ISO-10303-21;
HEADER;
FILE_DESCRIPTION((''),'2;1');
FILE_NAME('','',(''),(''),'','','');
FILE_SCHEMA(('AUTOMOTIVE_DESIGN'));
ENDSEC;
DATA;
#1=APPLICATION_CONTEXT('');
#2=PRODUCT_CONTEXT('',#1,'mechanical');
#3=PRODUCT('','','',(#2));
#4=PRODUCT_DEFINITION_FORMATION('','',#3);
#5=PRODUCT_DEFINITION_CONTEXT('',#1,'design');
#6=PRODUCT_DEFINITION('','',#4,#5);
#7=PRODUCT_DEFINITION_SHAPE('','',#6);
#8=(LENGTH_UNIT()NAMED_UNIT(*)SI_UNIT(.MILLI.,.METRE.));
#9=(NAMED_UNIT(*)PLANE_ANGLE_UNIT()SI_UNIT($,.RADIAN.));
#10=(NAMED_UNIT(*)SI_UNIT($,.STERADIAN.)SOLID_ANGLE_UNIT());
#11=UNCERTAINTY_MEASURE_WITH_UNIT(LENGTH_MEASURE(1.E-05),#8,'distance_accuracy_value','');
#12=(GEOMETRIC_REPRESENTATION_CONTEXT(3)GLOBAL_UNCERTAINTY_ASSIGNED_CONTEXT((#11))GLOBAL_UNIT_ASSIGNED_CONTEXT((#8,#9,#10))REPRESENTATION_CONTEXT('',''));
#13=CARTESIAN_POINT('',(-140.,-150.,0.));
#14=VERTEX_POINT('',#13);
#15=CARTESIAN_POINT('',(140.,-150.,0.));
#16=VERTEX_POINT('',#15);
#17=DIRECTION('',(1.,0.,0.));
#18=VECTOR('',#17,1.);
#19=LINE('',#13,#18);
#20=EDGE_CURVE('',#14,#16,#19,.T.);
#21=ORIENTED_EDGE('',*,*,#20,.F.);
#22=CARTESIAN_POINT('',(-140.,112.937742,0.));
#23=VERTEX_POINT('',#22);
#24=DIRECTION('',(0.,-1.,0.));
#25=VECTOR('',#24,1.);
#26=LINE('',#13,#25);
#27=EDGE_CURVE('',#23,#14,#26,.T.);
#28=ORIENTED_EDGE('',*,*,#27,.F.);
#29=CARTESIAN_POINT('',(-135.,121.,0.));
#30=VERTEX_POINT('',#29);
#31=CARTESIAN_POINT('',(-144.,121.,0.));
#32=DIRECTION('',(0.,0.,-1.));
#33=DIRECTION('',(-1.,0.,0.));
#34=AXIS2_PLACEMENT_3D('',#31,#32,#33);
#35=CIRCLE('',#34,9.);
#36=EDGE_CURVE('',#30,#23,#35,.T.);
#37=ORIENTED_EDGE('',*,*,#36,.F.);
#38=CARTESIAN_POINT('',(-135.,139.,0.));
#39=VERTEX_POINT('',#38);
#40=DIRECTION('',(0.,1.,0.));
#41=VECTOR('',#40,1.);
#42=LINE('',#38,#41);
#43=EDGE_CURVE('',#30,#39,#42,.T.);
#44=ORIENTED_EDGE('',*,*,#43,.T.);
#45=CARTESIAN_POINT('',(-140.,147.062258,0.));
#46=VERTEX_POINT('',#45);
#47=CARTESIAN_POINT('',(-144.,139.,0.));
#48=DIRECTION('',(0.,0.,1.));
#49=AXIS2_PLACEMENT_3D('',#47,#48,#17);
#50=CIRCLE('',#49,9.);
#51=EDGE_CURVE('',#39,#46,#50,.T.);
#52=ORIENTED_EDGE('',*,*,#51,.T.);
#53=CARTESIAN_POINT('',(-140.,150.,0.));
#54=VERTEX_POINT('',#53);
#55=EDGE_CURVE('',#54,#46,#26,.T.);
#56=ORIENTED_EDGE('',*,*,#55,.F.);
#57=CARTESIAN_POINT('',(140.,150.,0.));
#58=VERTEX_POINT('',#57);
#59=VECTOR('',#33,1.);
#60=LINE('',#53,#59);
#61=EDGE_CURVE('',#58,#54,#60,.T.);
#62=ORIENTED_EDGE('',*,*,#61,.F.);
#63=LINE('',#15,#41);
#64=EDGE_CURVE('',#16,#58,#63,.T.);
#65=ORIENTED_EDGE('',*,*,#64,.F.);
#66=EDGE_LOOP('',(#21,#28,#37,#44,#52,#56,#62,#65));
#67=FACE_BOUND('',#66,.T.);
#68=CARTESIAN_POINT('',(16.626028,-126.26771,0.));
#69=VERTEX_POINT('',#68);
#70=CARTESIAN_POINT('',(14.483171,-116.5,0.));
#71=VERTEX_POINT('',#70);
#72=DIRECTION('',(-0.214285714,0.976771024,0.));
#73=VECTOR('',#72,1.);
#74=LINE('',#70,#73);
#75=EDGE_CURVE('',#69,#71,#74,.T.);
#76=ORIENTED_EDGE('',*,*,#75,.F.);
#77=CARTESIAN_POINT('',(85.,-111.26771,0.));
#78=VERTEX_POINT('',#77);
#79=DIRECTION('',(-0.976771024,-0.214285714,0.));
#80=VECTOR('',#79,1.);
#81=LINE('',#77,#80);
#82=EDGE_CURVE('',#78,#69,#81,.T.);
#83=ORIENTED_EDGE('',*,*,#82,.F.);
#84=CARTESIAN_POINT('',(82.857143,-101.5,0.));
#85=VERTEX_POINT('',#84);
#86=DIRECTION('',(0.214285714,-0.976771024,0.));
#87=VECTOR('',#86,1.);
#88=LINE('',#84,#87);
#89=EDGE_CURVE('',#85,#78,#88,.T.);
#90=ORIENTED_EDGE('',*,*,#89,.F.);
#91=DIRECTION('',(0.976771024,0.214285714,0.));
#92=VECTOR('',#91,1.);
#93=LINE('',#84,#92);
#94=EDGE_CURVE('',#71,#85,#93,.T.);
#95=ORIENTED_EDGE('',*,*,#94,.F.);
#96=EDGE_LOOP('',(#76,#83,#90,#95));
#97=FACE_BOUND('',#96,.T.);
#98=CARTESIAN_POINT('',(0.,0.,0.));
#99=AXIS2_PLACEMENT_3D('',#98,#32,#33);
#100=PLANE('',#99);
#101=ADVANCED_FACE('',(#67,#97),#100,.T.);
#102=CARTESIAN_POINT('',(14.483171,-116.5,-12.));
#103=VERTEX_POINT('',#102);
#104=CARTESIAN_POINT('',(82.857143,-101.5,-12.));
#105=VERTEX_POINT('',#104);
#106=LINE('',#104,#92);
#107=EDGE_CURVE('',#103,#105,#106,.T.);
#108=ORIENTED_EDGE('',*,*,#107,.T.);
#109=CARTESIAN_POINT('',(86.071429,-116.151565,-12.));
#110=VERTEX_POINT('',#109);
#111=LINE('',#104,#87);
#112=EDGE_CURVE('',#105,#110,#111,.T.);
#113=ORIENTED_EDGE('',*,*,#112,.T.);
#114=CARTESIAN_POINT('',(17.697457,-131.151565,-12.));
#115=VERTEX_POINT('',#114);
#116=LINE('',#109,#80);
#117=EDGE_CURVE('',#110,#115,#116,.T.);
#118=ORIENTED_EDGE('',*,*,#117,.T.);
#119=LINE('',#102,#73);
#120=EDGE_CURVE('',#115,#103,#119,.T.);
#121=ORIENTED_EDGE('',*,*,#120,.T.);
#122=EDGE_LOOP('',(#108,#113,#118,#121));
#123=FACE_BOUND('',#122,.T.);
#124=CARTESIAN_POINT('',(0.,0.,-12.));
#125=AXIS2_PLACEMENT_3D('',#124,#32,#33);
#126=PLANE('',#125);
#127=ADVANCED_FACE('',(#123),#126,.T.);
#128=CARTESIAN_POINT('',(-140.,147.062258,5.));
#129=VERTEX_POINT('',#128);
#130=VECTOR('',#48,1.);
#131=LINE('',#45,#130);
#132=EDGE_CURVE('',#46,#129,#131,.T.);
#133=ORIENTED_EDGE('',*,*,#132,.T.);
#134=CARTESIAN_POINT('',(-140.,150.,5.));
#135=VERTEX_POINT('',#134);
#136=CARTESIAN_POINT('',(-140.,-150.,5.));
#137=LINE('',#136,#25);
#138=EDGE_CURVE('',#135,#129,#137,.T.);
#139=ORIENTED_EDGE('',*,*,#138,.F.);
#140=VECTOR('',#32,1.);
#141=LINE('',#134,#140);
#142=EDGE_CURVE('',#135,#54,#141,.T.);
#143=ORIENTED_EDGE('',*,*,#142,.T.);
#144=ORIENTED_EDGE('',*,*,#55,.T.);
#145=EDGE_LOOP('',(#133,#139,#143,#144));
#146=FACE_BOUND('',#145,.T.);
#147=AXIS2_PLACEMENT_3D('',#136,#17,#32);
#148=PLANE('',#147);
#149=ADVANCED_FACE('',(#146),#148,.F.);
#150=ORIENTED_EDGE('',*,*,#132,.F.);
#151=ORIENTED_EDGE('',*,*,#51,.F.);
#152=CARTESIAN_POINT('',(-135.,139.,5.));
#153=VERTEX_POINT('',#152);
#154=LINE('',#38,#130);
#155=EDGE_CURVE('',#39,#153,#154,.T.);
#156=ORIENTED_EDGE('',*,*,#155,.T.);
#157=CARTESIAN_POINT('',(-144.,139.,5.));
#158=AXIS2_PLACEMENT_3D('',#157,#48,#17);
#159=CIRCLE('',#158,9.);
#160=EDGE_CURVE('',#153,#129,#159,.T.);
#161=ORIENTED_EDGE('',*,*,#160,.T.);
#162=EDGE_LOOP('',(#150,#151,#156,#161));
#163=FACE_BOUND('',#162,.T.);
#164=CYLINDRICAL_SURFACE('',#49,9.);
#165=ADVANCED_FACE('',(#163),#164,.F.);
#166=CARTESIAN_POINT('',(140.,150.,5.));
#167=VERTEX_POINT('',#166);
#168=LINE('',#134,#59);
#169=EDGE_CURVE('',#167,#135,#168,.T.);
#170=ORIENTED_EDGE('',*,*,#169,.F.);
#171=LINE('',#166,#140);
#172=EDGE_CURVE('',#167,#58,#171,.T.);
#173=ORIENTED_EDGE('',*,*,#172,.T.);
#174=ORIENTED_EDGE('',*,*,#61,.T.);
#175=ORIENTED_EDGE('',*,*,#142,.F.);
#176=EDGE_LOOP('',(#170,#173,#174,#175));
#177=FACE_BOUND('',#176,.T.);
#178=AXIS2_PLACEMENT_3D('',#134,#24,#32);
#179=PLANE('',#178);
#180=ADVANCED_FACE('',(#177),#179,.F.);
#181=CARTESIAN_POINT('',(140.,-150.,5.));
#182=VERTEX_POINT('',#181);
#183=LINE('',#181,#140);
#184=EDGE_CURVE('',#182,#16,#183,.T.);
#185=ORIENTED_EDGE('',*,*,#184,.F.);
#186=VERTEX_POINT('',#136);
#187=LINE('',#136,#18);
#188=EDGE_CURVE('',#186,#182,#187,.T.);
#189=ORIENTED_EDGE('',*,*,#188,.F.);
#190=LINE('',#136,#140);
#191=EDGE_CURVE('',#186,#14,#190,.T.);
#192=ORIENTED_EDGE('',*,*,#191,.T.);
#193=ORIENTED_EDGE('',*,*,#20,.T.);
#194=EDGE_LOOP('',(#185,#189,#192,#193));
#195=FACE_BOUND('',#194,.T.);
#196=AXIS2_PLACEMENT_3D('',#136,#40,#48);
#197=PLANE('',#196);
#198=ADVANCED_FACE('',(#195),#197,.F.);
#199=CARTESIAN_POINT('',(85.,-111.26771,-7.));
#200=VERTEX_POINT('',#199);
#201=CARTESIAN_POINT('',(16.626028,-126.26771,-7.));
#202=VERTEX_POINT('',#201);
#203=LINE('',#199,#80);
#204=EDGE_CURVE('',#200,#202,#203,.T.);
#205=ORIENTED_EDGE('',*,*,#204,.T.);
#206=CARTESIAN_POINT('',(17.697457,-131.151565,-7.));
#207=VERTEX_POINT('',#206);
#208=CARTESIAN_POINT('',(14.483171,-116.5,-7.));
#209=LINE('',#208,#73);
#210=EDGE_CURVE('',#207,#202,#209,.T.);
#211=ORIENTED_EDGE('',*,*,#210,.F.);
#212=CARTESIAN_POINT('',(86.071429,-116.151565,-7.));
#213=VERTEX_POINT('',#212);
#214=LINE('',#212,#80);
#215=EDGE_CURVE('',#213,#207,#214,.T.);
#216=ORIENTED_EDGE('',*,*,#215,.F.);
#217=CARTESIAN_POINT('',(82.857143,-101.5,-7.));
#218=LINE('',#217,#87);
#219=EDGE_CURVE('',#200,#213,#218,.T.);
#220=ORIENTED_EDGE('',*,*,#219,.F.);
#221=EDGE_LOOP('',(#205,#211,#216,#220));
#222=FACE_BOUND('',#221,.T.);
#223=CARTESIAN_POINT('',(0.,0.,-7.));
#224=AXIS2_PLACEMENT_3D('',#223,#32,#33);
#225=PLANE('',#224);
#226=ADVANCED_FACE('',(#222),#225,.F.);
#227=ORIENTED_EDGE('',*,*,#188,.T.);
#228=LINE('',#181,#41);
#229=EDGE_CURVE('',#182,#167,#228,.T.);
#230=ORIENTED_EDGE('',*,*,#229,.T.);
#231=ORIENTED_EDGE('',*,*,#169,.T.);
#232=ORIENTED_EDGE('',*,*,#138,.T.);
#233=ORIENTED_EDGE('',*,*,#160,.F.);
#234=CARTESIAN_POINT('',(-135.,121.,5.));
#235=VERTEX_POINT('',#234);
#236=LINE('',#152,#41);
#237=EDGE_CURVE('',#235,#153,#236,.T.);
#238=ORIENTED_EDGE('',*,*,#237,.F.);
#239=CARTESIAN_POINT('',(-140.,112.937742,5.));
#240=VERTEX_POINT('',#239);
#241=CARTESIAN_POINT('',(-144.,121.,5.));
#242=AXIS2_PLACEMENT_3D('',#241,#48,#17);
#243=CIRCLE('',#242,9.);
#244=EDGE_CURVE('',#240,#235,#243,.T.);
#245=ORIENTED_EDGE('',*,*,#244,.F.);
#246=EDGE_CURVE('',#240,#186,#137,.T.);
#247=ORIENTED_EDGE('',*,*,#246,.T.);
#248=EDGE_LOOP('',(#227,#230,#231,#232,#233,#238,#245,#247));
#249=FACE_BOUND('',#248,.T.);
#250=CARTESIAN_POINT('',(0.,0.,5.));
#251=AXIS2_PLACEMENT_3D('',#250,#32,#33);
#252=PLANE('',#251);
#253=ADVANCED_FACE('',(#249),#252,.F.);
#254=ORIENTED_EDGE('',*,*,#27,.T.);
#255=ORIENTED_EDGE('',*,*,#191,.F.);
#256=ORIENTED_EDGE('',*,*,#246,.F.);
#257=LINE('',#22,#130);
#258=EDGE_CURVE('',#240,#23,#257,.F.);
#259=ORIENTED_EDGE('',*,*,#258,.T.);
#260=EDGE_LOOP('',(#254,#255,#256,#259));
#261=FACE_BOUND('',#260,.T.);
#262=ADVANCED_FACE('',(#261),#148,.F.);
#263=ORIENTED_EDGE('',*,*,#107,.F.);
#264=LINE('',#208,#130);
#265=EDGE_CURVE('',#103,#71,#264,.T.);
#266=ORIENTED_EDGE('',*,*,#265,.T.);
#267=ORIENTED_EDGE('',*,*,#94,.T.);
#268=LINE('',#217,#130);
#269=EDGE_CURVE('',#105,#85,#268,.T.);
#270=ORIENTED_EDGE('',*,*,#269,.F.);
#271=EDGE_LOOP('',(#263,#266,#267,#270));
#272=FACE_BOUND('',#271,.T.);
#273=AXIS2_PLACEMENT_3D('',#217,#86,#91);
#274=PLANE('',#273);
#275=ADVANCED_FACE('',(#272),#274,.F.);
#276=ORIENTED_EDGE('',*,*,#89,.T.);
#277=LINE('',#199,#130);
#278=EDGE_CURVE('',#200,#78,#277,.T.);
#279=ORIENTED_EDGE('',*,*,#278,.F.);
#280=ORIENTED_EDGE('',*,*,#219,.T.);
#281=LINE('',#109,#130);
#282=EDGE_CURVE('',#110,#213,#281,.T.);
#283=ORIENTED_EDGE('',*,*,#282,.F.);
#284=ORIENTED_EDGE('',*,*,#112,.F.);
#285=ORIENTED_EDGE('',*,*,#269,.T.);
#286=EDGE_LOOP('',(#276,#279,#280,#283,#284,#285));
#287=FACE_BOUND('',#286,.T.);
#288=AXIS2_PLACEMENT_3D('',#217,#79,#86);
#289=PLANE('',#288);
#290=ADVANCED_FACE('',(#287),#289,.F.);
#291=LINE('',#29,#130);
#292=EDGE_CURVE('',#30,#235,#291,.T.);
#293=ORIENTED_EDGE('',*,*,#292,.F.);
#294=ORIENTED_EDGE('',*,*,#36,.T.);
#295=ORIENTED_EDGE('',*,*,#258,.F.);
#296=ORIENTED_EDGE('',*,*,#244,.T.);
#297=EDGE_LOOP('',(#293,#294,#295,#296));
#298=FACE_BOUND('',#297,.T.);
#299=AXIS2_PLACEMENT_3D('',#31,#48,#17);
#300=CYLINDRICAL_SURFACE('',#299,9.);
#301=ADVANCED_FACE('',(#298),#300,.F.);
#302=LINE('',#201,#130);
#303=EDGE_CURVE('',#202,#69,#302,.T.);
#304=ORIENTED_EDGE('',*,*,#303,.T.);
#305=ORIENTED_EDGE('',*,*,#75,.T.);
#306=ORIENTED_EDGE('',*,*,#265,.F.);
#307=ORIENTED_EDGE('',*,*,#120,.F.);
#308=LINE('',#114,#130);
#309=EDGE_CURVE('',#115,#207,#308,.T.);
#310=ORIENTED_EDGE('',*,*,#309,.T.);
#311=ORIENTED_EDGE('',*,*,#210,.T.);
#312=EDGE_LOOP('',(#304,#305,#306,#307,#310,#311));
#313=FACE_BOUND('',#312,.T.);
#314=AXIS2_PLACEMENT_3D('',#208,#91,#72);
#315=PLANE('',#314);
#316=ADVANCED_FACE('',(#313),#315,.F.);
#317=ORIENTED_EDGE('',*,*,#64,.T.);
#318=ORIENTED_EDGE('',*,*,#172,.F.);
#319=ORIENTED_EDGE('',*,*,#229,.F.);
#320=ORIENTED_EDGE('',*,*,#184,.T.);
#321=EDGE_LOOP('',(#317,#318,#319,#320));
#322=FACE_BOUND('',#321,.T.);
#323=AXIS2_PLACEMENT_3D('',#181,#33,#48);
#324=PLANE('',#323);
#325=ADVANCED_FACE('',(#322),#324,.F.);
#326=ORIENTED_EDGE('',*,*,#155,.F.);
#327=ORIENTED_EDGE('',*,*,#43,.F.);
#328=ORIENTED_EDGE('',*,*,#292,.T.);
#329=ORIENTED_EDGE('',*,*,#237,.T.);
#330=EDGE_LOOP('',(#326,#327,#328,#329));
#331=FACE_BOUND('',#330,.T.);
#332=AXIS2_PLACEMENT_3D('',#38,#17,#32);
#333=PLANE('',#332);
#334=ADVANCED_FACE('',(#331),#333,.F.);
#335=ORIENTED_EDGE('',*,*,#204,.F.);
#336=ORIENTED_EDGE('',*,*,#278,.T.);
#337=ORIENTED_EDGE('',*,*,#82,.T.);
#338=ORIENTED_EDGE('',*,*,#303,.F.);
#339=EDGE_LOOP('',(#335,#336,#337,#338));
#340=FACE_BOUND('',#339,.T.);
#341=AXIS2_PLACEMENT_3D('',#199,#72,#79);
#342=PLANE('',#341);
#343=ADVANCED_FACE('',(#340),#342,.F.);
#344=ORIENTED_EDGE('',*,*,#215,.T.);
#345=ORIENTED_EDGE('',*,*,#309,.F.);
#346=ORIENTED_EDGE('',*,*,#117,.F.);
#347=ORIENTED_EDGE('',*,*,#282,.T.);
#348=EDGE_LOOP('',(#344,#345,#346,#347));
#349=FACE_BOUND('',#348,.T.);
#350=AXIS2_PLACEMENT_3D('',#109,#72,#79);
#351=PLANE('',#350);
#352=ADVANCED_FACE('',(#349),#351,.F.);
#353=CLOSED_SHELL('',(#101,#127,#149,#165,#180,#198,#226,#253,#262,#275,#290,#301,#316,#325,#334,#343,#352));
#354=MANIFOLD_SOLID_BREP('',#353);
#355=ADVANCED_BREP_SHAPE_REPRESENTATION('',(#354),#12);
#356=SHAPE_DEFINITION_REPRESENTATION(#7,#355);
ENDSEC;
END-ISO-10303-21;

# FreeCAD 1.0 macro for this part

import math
import FreeCAD as App
import Part
import Sketcher


def add_polygon(sketch, points):
    """Adds a closed chain of lines whose ends are joined by coincident constraints."""
    first, n = sketch.GeometryCount, len(points)
    for a, b in zip(points, points[1:] + points[:1]):
        sketch.addGeometry(Part.LineSegment(App.Vector(*a, 0), App.Vector(*b, 0)), False)
    for i in range(n):
        sketch.addConstraint(Sketcher.Constraint("Coincident", first + i, 2, first + (i + 1) % n, 1))

doc = App.newDocument("Part")
body = doc.addObject("PartDesign::Body", "Body")

# Sketch on XY plane
sketch1 = body.newObject("Sketcher::SketchObject", "Sketch")
sketch1.AttachmentSupport = (doc.getObject("XY_Plane"), [""])
sketch1.MapMode = "FlatFace"
add_polygon(sketch1, [(-140, 150), (-140, -150), (140, -150), (140, 150)])  # lines 0-3
sketch1.addConstraint([
    Sketcher.Constraint("Vertical", 0),
    Sketcher.Constraint("Horizontal", 1),
    Sketcher.Constraint("Vertical", 2),
    Sketcher.Constraint("Horizontal", 3),
    Sketcher.Constraint("Symmetric", 0, 2, 2, 2, -1, 1),
    Sketcher.Constraint("DistanceX", 1, 1, 1, 2, 280.0),
    Sketcher.Constraint("DistanceY", 0, 2, 0, 1, 300.0),
])
pad1 = body.newObject("PartDesign::Pad", "Pad")
pad1.Profile = sketch1
pad1.Length = 5

# Sketch on XY plane
sketch2 = body.newObject("Sketcher::SketchObject", "Sketch001")
sketch2.AttachmentSupport = (doc.getObject("XY_Plane"), [""])
sketch2.MapMode = "FlatFace"
sketch2.AttachmentOffset = App.Placement(App.Vector(0, 0, 5), App.Rotation())
sketch2.addGeometry([
    Part.LineSegment(App.Vector(-153, 139, 0), App.Vector(-153, 121, 0)),
    Part.ArcOfCircle(Part.Circle(App.Vector(-144, 121, 0), App.Vector(0, 0, 1), 9), math.radians(180), math.radians(360)),
    Part.LineSegment(App.Vector(-135, 121, 0), App.Vector(-135, 139, 0)),
    Part.ArcOfCircle(Part.Circle(App.Vector(-144, 139, 0), App.Vector(0, 0, 1), 9), math.radians(0), math.radians(180)),
], False)
sketch2.addConstraint([
    Sketcher.Constraint("Tangent", 0, 2, 1, 1),
    Sketcher.Constraint("Tangent", 1, 2, 2, 1),
    Sketcher.Constraint("Tangent", 2, 2, 3, 1),
    Sketcher.Constraint("Tangent", 3, 2, 0, 1),
    Sketcher.Constraint("Vertical", 0),
    Sketcher.Constraint("Vertical", 2),
    Sketcher.Constraint("Radius", 1, 9.0),
    Sketcher.Constraint("DistanceY", 0, 2, 0, 1, 18.0),
    Sketcher.Constraint("DistanceX", 1, 3, -1, 1, 144.0),
    Sketcher.Constraint("DistanceY", -1, 1, 1, 3, 121.0),
])
pocket1 = body.newObject("PartDesign::Pocket", "Pocket")
pocket1.Profile = sketch2
pocket1.Type = "ThroughAll"

# Sketch on XY plane
sketch3 = body.newObject("Sketcher::SketchObject", "Sketch002")
sketch3.AttachmentSupport = (doc.getObject("XY_Plane"), [""])
sketch3.MapMode = "FlatFace"
add_polygon(sketch3, [(14.483171, -116.5), (82.857143, -101.5), (85, -111.26771), (16.626028, -126.26771)])  # lines 0-3
sketch3.addConstraint([
    Sketcher.Constraint("Perpendicular", 0, 1),
    Sketcher.Constraint("Perpendicular", 1, 2),
    Sketcher.Constraint("Perpendicular", 2, 3),
    Sketcher.Constraint("Distance", 0, 70.0),
    Sketcher.Constraint("Distance", 1, 10.0),
    Sketcher.Constraint("DistanceX", -1, 1, 1, 2, 85.0),
    Sketcher.Constraint("DistanceY", 2, 2, 1, 2, 15.0),
    Sketcher.Constraint("DistanceY", 0, 2, -1, 1, 101.5),
])
pad2 = body.newObject("PartDesign::Pad", "Pad001")
pad2.Profile = sketch3
pad2.Length = 7
pad2.Reversed = True

# Sketch on XY plane
sketch4 = body.newObject("Sketcher::SketchObject", "Sketch003")
sketch4.AttachmentSupport = (doc.getObject("XY_Plane"), [""])
sketch4.MapMode = "FlatFace"
sketch4.AttachmentOffset = App.Placement(App.Vector(0, 0, -7), App.Rotation())
add_polygon(sketch4, [(14.483171, -116.5), (82.857143, -101.5), (86.071429, -116.151565), (17.697457, -131.151565)])  # lines 0-3
sketch4.addConstraint([
    Sketcher.Constraint("Perpendicular", 0, 1),
    Sketcher.Constraint("Perpendicular", 1, 2),
    Sketcher.Constraint("Perpendicular", 2, 3),
    Sketcher.Constraint("Distance", 0, 70.0),
    Sketcher.Constraint("Distance", 1, 15.0),
    Sketcher.Constraint("DistanceY", 2, 2, 1, 2, 15.0),
    Sketcher.Constraint("DistanceY", 0, 2, -1, 1, 101.5),
    Sketcher.Constraint("DistanceX", -1, 1, 1, 2, 86.071429),
])
pad3 = body.newObject("PartDesign::Pad", "Pad002")
pad3.Profile = sketch4
pad3.Length = 5
pad3.Reversed = True

doc.recompute()
